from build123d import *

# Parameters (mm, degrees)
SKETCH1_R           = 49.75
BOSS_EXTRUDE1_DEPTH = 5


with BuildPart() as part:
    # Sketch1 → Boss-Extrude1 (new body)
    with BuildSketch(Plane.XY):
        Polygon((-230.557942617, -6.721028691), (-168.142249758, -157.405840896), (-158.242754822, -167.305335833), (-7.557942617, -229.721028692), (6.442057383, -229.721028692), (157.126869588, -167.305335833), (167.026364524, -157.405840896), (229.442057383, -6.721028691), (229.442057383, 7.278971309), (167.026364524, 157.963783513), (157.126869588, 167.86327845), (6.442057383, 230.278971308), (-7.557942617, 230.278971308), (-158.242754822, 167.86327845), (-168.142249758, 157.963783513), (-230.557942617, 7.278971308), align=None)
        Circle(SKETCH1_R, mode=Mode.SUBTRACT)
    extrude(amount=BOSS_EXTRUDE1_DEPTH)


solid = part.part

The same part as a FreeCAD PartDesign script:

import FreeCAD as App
import Part
import Sketcher
from FreeCAD import Vector
Q = App.Units.Quantity


def add_polygon(sketch, points):
    """Adds a closed chain of lines whose ends are joined by coincident constraints."""
    first, n = sketch.GeometryCount, len(points)
    for a, b in zip(points, points[1:] + points[:1]):
        sketch.addGeometry(Part.LineSegment(App.Vector(*a, 0), App.Vector(*b, 0)), False)
    for i in range(n):
        sketch.addConstraint(Sketcher.Constraint("Coincident", first + i, 2, first + (i + 1) % n, 1))

doc = App.newDocument("Part")
body = doc.addObject("PartDesign::Body", "Body")

# Sketch on XY plane
sketch1 = body.newObject("Sketcher::SketchObject", "Sketch")
sketch1.AttachmentSupport = (doc.getObject("XY_Plane"), [""])
sketch1.MapMode = "FlatFace"
add_polygon(sketch1, [(-231, -7), (-168, -157), (-158, -167), (-8, -230), (6, -230), (157, -167), (167, -157), (229, -7), (229, 7), (167, 158), (157, 168), (6, 230), (-8, 230), (-158, 168), (-168, 158), (-231, 7)])  # lines 0-15
sketch1.addGeometry(Part.Circle(Vector(0, 0, 0), Vector(0, 0, 1), 50), False)  # 16
sketch1.addConstraint([
    Sketcher.Constraint("Horizontal", 3),
    Sketcher.Constraint("Vertical", 7),
    Sketcher.Constraint("Horizontal", 11),
    Sketcher.Constraint("Vertical", 15),
    Sketcher.Constraint("Coincident", 16, 3, -1, 1),
    Sketcher.Constraint("Perpendicular", 0, 4),
    Sketcher.Constraint("Perpendicular", 1, 5),
    Sketcher.Constraint("Perpendicular", 2, 6),
    Sketcher.Constraint("Perpendicular", 4, 8),
    Sketcher.Constraint("Perpendicular", 5, 9),
    Sketcher.Constraint("Perpendicular", 6, 10),
    Sketcher.Constraint("Perpendicular", 8, 12),
    Sketcher.Constraint("Perpendicular", 9, 13),
    Sketcher.Constraint("Perpendicular", 10, 14),
    Sketcher.Constraint("Horizontal", 1, 2, 4, 2),
    Sketcher.Constraint("Horizontal", 0, 2, 5, 2),
    Sketcher.Constraint("Horizontal", 9, 2, 12, 2),
    Sketcher.Constraint("Horizontal", 8, 2, 13, 2),
    Sketcher.Constraint("Horizontal", 7, 2, 14, 2),
    Sketcher.Constraint("Horizontal", 6, 2, 15, 2),
    Sketcher.Constraint("Vertical", 5, 2, 8, 2),
    Sketcher.Constraint("Vertical", 4, 2, 9, 2),
    Sketcher.Constraint("Vertical", 3, 2, 10, 2),
    Sketcher.Constraint("Vertical", 2, 2, 11, 2),
    Sketcher.Constraint("Vertical", 1, 2, 12, 2),
    Sketcher.Constraint("Equal", 11, 7),
    Sketcher.Constraint("Equal", 0, 2),
    Sketcher.Constraint("Diameter", 16, Q("99.5 mm")),
    Sketcher.Constraint("DistanceX", 3, 1, 3, 2, Q("14 mm")),
    Sketcher.Constraint("Distance", 1, Q("14 mm")),
    Sketcher.Constraint("Angle", 0, Q("-67.5 deg")),
    Sketcher.Constraint("DistanceX", 3, 2, 6, 2, Q("223 mm")),
    Sketcher.Constraint("DistanceX", 0, 2, -1, 1, Q("168.14225 mm")),
    Sketcher.Constraint("DistanceY", 0, 2, -1, 1, Q("157.405841 mm")),
])
pad1 = body.newObject("PartDesign::Pad", "Pad")
pad1.Profile = sketch1
pad1.Length = 5

doc.recompute()
